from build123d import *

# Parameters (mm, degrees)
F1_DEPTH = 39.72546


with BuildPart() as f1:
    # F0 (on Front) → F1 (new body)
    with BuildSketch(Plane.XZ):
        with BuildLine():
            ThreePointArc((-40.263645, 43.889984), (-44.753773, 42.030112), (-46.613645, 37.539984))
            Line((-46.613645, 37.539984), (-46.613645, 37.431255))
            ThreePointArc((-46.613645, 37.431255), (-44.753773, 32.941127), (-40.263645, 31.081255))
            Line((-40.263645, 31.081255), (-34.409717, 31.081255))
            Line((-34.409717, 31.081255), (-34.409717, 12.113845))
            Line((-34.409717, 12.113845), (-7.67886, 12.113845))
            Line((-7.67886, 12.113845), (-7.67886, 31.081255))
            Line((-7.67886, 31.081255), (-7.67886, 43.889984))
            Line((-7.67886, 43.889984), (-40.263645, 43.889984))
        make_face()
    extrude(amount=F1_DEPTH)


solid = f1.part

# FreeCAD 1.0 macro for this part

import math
import FreeCAD as App
import Part
import Sketcher
Q = App.Units.Quantity

doc = App.newDocument("Part")
body = doc.addObject("PartDesign::Body", "Body")

sketch1 = body.newObject("Sketcher::SketchObject", "Sketch")
sketch1.AttachmentSupport = (doc.getObject("XZ_Plane"), [""])
sketch1.MapMode = "FlatFace"
sketch1.addGeometry(Part.ArcOfCircle(Part.Circle(App.Vector(-40.263645, 37.539984, 0), App.Vector(0, 0, 1), 6.35), math.radians(90.000002), math.radians(179.999998)), False)
sketch1.addGeometry(Part.LineSegment(App.Vector(-46.613645, 37.539984, 0), App.Vector(-46.613645, 37.431255, 0)), False)
sketch1.addGeometry(Part.ArcOfCircle(Part.Circle(App.Vector(-40.263645, 37.431255, 0), App.Vector(0, 0, 1), 6.35), math.radians(-179.999998), math.radians(-90.000002)), False)
sketch1.addGeometry(Part.LineSegment(App.Vector(-40.263645, 31.081255, 0), App.Vector(-34.409717, 31.081255, 0)), False)
sketch1.addGeometry(Part.LineSegment(App.Vector(-34.409717, 31.081255, 0), App.Vector(-34.409717, 12.113845, 0)), False)
sketch1.addGeometry(Part.LineSegment(App.Vector(-34.409717, 12.113845, 0), App.Vector(-7.67886, 12.113845, 0)), False)
sketch1.addGeometry(Part.LineSegment(App.Vector(-7.67886, 12.113845, 0), App.Vector(-7.67886, 43.889984, 0)), False)
sketch1.addGeometry(Part.LineSegment(App.Vector(-7.67886, 43.889984, 0), App.Vector(-40.263645, 43.889984, 0)), False)
sketch1.addConstraint(Sketcher.Constraint("Tangent", 0, 2, 1, 1))
sketch1.addConstraint(Sketcher.Constraint("Tangent", 1, 2, 2, 1))
sketch1.addConstraint(Sketcher.Constraint("Tangent", 2, 2, 3, 1))
sketch1.addConstraint(Sketcher.Constraint("Coincident", 3, 2, 4, 1))
sketch1.addConstraint(Sketcher.Constraint("Coincident", 4, 2, 5, 1))
sketch1.addConstraint(Sketcher.Constraint("Coincident", 5, 2, 6, 1))
sketch1.addConstraint(Sketcher.Constraint("Coincident", 6, 2, 7, 1))
sketch1.addConstraint(Sketcher.Constraint("Tangent", 7, 2, 0, 1))
sketch1.addConstraint(Sketcher.Constraint("Vertical", 1))
sketch1.addConstraint(Sketcher.Constraint("Horizontal", 3))
sketch1.addConstraint(Sketcher.Constraint("Vertical", 4))
sketch1.addConstraint(Sketcher.Constraint("Horizontal", 5))
sketch1.addConstraint(Sketcher.Constraint("Vertical", 6))
sketch1.addConstraint(Sketcher.Constraint("Horizontal", 7))
sketch1.addConstraint(Sketcher.Constraint("Equal", 0, 2))
sketch1.addConstraint(Sketcher.Constraint("Radius", 0, Q("0.25 in")))
sketch1.addConstraint(Sketcher.Constraint("DistanceY", 1, 2, 1, 1, 0.108729))
sketch1.addConstraint(Sketcher.Constraint("DistanceY", 4, 2, 4, 1, 18.96741))
sketch1.addConstraint(Sketcher.Constraint("DistanceX", 3, 1, 3, 2, 5.853928))
sketch1.addConstraint(Sketcher.Constraint("DistanceX", 5, 1, 5, 2, 26.730857))
sketch1.addConstraint(Sketcher.Constraint("DistanceX", 5, 2, -1, 1, 7.67886))
sketch1.addConstraint(Sketcher.Constraint("DistanceY", -1, 1, 0, 3, 37.539984))
pad1 = body.newObject("PartDesign::Pad", "Pad")
pad1.Profile = sketch1
pad1.Length = 39.72546

doc.recompute()
